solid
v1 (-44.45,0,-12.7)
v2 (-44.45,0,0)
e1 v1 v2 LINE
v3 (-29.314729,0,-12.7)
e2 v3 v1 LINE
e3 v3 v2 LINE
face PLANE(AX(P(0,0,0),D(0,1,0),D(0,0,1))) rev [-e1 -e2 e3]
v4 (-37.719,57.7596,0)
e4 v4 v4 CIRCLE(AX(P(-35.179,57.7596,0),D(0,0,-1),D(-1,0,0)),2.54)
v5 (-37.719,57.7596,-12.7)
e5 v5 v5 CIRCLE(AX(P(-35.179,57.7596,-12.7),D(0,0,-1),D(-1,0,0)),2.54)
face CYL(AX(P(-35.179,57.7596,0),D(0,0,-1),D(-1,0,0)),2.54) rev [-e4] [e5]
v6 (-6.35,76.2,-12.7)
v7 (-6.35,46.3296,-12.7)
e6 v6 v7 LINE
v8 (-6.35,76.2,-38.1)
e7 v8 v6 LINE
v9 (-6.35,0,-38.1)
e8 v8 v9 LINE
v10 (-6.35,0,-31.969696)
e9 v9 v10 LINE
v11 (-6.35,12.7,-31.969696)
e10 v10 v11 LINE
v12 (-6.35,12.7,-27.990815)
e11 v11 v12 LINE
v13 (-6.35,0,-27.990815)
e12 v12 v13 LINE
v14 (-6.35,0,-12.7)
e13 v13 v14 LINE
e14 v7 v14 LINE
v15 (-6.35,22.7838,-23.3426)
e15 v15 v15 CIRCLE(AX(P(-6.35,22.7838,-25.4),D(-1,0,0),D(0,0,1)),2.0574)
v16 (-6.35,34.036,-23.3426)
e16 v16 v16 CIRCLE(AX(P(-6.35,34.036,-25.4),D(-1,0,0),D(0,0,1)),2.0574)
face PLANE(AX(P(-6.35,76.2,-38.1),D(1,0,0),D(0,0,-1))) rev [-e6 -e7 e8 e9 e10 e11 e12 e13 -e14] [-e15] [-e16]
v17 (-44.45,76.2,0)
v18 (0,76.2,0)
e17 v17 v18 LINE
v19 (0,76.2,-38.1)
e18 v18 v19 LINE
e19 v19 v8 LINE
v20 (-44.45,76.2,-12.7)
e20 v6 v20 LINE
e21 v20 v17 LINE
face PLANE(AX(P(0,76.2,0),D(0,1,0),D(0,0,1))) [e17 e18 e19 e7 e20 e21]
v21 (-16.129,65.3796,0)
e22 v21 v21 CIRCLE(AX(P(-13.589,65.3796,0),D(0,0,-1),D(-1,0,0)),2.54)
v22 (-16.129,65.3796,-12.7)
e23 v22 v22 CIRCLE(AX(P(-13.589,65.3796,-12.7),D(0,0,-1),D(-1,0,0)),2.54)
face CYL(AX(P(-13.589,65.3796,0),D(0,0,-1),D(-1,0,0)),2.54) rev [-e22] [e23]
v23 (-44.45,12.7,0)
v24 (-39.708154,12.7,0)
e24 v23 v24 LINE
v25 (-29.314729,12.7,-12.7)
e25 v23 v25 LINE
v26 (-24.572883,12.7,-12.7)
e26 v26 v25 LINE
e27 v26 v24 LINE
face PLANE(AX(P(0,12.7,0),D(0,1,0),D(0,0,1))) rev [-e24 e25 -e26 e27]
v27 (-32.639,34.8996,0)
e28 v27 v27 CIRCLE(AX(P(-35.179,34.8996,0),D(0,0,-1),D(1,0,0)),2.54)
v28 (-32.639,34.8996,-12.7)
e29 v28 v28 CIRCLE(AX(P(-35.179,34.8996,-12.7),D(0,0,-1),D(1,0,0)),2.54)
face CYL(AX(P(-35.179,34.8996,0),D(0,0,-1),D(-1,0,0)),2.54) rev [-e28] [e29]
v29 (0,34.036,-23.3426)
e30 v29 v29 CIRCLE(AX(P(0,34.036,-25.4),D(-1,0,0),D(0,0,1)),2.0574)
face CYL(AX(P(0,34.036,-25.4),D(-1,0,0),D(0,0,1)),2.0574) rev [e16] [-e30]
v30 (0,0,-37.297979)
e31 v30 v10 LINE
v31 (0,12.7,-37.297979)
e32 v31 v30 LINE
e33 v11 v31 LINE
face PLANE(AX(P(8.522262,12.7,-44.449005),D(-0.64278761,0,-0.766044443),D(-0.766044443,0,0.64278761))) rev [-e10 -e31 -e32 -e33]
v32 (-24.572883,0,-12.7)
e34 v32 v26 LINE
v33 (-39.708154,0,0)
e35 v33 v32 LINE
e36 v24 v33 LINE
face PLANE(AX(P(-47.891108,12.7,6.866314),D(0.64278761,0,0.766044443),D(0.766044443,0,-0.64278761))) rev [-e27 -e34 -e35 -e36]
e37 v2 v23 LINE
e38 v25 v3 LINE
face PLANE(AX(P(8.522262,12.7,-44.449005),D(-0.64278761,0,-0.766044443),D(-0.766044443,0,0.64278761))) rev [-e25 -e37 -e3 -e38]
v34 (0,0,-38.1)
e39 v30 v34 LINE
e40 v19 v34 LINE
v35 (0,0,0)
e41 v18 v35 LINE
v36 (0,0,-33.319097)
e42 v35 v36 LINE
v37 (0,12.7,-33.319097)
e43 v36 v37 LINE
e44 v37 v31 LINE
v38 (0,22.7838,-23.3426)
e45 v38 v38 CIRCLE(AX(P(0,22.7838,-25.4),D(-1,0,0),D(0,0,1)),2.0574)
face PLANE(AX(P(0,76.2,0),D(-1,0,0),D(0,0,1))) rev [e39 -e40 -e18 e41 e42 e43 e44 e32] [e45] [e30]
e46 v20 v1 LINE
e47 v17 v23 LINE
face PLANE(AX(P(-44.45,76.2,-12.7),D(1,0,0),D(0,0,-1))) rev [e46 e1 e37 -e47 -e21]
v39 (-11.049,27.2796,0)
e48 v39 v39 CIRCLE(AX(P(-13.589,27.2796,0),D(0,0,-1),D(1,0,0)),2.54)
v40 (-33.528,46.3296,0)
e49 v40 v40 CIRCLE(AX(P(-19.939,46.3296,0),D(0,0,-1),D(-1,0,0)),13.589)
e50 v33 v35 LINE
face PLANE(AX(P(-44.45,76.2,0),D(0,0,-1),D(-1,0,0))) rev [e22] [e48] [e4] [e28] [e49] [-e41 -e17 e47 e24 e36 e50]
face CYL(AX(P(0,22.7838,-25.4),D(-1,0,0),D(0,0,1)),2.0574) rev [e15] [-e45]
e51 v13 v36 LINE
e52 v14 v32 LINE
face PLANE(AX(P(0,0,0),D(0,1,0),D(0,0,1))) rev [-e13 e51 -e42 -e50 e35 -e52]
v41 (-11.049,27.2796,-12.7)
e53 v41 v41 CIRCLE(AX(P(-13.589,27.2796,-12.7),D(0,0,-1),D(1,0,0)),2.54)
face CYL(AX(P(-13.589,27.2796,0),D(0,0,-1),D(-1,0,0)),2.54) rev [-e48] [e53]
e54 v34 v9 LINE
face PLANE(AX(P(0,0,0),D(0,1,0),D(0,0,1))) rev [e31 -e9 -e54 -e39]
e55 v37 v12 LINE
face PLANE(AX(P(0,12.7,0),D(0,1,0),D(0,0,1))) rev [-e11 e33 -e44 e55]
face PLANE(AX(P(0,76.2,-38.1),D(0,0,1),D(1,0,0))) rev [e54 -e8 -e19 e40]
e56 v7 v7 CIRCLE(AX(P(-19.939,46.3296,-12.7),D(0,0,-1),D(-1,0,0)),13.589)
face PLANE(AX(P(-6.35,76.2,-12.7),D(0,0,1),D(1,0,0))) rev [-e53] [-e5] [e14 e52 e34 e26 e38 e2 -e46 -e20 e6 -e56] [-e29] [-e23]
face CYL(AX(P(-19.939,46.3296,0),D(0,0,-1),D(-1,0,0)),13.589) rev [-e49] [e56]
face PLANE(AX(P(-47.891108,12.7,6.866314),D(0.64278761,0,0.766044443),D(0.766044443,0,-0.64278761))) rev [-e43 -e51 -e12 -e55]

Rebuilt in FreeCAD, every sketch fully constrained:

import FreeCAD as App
import Part
import Sketcher

V = App.Vector
Q = App.Units.Quantity


def add_polygon(sketch, points):
    """Adds a closed chain of lines whose ends are joined by coincident constraints."""
    first, n = sketch.GeometryCount, len(points)
    for a, b in zip(points, points[1:] + points[:1]):
        sketch.addGeometry(Part.LineSegment(App.Vector(*a, 0), App.Vector(*b, 0)), False)
    for i in range(n):
        sketch.addConstraint(Sketcher.Constraint("Coincident", first + i, 2, first + (i + 1) % n, 1))

doc = App.newDocument("Part")
params = doc.addObject("Spreadsheet::Sheet", "Params")
for row, (alias, value) in enumerate([
    ("sketch1_height", "1 in"),
    ("sketch1_width", "1.5 in"),
    ("sketch1_width2", "1.75 in"),
    ("pad1_length", "3 in"),
    ("sketch2_diameter", "0.162 in"),
    ("sketch3_diameter", "0.2 in"),
    ("sketch3_diameter2", "1.07 in"),
    ("sketch4_length", "3 in"),
    ("sketch4_length2", "0.12 in"),
    ("pocket3_length", "0.5 in"),
], start=1):
    params.set(f"A{row}", alias)
    params.set(f"B{row}", "=" + value)
    params.setAlias(f"B{row}", alias)

body = doc.addObject("PartDesign::Body", "Body")

# Sketch on XZ plane
sketch1 = doc.addObject("Sketcher::SketchObject", "Sketch")
body.addObject(sketch1)
sketch1.AttachmentSupport = (doc.XZ_Plane, [""])
sketch1.MapMode = "FlatFace"
add_polygon(sketch1, [(-44, -13), (-44, 0), (0, 0), (0, -38), (-6, -38), (-6, -13)])  # lines 0-5
sketch1.addConstraint(Sketcher.Constraint("Vertical", 0))
sketch1.addConstraint(Sketcher.Constraint("Horizontal", 1))
sketch1.addConstraint(Sketcher.Constraint("Vertical", 2))
sketch1.addConstraint(Sketcher.Constraint("Horizontal", 3))
sketch1.addConstraint(Sketcher.Constraint("Vertical", 4))
sketch1.addConstraint(Sketcher.Constraint("Horizontal", 5))
sketch1.addConstraint(Sketcher.Constraint("Coincident", 1, 2, -1, 1))
sketch1.addConstraint(Sketcher.Constraint("Equal", 5, 2))
sketch1.addConstraint(Sketcher.Constraint("DistanceY", 4, 1, 4, 2, Q("1 in")))
sketch1.addConstraint(Sketcher.Constraint("DistanceX", 5, 2, 5, 1, Q("1.5 in")))
sketch1.addConstraint(Sketcher.Constraint("DistanceX", 1, 1, 1, 2, Q("1.75 in")))
sketch1.setExpression("Constraints[14]", "Params.sketch1_height")
sketch1.setExpression("Constraints[15]", "Params.sketch1_width")
sketch1.setExpression("Constraints[16]", "Params.sketch1_width2")
pad1 = doc.addObject("PartDesign::Pad", "Pad")
body.addObject(pad1)
pad1.Profile = sketch1
pad1.setExpression("Length", "Params.pad1_length")
pad1.Reversed = True

# Sketch on YZ plane
sketch2 = doc.addObject("Sketcher::SketchObject", "Sketch001")
body.addObject(sketch2)
sketch2.AttachmentSupport = (doc.YZ_Plane, [""])
sketch2.MapMode = "FlatFace"
sketch2.AttachmentOffset = App.Placement(V(0, 0, -0.25 * 25.4), App.Rotation())
sketch2.addGeometry(Part.Circle(V(22.8, -25.4, 0), V(0, 0, 1), 2.1), False)
sketch2.addGeometry(Part.Circle(V(34, -25.4, 0), V(0, 0, 1), 2.1), False)
sketch2.addConstraint(Sketcher.Constraint("Equal", 0, 1))
sketch2.addConstraint(Sketcher.Constraint("Horizontal", 0, 3, 1, 3))
sketch2.addConstraint(Sketcher.Constraint("Diameter", 0, Q("0.162 in")))
sketch2.addConstraint(Sketcher.Constraint("DistanceY", 0, 3, -1, 1, Q("1 in")))
sketch2.addConstraint(Sketcher.Constraint("DistanceX", -1, 1, 1, 3, Q("1.34 in")))
sketch2.addConstraint(Sketcher.Constraint("DistanceX", -1, 1, 0, 3, Q("0.897 in")))
sketch2.setExpression("Constraints[2]", "Params.sketch2_diameter")
pocket1 = doc.addObject("PartDesign::Pocket", "Pocket")
body.addObject(pocket1)
pocket1.Profile = sketch2
pocket1.Type = "ThroughAll"
pocket1.Reversed = True

# Sketch on XY plane
sketch3 = doc.addObject("Sketcher::SketchObject", "Sketch002")
body.addObject(sketch3)
sketch3.AttachmentSupport = (doc.XY_Plane, [""])
sketch3.MapMode = "FlatFace"
sketch3.AttachmentOffset = App.Placement(V(0, 0, -0.5 * 25.4), App.Rotation())
sketch3.addGeometry(Part.Circle(V(-19.9, 46.3, 0), V(0, 0, 1), 13.6), False)
sketch3.addGeometry(Part.Circle(V(-35.2, 57.8, 0), V(0, 0, 1), 2.5), False)
sketch3.addGeometry(Part.Circle(V(-13.6, 65.4, 0), V(0, 0, 1), 2.5), False)
sketch3.addGeometry(Part.Circle(V(-13.6, 27.3, 0), V(0, 0, 1), 2.5), False)
sketch3.addGeometry(Part.Circle(V(-35.2, 34.9, 0), V(0, 0, 1), 2.5), False)
sketch3.addConstraint(Sketcher.Constraint("Equal", 1, 2))
sketch3.addConstraint(Sketcher.Constraint("Equal", 2, 3))
sketch3.addConstraint(Sketcher.Constraint("Equal", 3, 4))
sketch3.addConstraint(Sketcher.Constraint("Vertical", 2, 3, 3, 3))
sketch3.addConstraint(Sketcher.Constraint("Vertical", 1, 3, 4, 3))
sketch3.addConstraint(Sketcher.Constraint("Diameter", 1, Q("0.2 in")))
sketch3.addConstraint(Sketcher.Constraint("Diameter", 0, Q("1.07 in")))
sketch3.addConstraint(Sketcher.Constraint("DistanceX", 1, 3, 0, 3, Q("0.6 in")))
sketch3.addConstraint(Sketcher.Constraint("DistanceY", 1, 3, 2, 3, Q("0.3 in")))
sketch3.addConstraint(Sketcher.Constraint("DistanceY", 3, 3, 1, 3, Q("1.2 in")))
sketch3.addConstraint(Sketcher.Constraint("DistanceY", 4, 3, 1, 3, Q("0.9 in")))
sketch3.addConstraint(Sketcher.Constraint("DistanceY", 0, 3, 1, 3, Q("0.45 in")))
sketch3.addConstraint(Sketcher.Constraint("DistanceX", 0, 3, 2, 3, Q("0.25 in")))
sketch3.addConstraint(Sketcher.Constraint("DistanceX", 0, 3, -1, 1, Q("0.785 in")))
sketch3.addConstraint(Sketcher.Constraint("DistanceY", -1, 1, 0, 3, Q("1.824 in")))
sketch3.setExpression("Constraints[5]", "Params.sketch3_diameter")
sketch3.setExpression("Constraints[6]", "Params.sketch3_diameter2")
pocket2 = doc.addObject("PartDesign::Pocket", "Pocket001")
body.addObject(pocket2)
pocket2.Profile = sketch3
pocket2.Type = "ThroughAll"
pocket2.Reversed = True

# Sketch on XZ plane
sketch4 = doc.addObject("Sketcher::SketchObject", "Sketch003")
body.addObject(sketch4)
sketch4.AttachmentSupport = (doc.XZ_Plane, [""])
sketch4.MapMode = "FlatFace"
add_polygon(sketch4, [(10.5, -42.1), (-47.9, 6.9), (-49.9, 4.5), (8.5, -44.4)])  # lines 0-3
sketch4.addConstraint(Sketcher.Constraint("Perpendicular", 0, 1))
sketch4.addConstraint(Sketcher.Constraint("Perpendicular", 1, 2))
sketch4.addConstraint(Sketcher.Constraint("Perpendicular", 2, 3))
sketch4.addConstraint(Sketcher.Constraint("Distance", 0, Q("3 in")))
sketch4.addConstraint(Sketcher.Constraint("Angle", 0, Q("140 deg")))
sketch4.addConstraint(Sketcher.Constraint("Distance", 1, Q("0.12 in")))
sketch4.addConstraint(Sketcher.Constraint("DistanceY", 3, 2, -1, 1, Q("42.114102 mm")))
sketch4.addConstraint(Sketcher.Constraint("DistanceX", 0, 2, -1, 1, Q("47.891108 mm")))
sketch4.setExpression("Constraints[7]", "Params.sketch4_length")
sketch4.setExpression("Constraints[9]", "Params.sketch4_length2")
pocket3 = doc.addObject("PartDesign::Pocket", "Pocket002")
body.addObject(pocket3)
pocket3.Profile = sketch4
pocket3.setExpression("Length", "Params.pocket3_length")

doc.recompute()
